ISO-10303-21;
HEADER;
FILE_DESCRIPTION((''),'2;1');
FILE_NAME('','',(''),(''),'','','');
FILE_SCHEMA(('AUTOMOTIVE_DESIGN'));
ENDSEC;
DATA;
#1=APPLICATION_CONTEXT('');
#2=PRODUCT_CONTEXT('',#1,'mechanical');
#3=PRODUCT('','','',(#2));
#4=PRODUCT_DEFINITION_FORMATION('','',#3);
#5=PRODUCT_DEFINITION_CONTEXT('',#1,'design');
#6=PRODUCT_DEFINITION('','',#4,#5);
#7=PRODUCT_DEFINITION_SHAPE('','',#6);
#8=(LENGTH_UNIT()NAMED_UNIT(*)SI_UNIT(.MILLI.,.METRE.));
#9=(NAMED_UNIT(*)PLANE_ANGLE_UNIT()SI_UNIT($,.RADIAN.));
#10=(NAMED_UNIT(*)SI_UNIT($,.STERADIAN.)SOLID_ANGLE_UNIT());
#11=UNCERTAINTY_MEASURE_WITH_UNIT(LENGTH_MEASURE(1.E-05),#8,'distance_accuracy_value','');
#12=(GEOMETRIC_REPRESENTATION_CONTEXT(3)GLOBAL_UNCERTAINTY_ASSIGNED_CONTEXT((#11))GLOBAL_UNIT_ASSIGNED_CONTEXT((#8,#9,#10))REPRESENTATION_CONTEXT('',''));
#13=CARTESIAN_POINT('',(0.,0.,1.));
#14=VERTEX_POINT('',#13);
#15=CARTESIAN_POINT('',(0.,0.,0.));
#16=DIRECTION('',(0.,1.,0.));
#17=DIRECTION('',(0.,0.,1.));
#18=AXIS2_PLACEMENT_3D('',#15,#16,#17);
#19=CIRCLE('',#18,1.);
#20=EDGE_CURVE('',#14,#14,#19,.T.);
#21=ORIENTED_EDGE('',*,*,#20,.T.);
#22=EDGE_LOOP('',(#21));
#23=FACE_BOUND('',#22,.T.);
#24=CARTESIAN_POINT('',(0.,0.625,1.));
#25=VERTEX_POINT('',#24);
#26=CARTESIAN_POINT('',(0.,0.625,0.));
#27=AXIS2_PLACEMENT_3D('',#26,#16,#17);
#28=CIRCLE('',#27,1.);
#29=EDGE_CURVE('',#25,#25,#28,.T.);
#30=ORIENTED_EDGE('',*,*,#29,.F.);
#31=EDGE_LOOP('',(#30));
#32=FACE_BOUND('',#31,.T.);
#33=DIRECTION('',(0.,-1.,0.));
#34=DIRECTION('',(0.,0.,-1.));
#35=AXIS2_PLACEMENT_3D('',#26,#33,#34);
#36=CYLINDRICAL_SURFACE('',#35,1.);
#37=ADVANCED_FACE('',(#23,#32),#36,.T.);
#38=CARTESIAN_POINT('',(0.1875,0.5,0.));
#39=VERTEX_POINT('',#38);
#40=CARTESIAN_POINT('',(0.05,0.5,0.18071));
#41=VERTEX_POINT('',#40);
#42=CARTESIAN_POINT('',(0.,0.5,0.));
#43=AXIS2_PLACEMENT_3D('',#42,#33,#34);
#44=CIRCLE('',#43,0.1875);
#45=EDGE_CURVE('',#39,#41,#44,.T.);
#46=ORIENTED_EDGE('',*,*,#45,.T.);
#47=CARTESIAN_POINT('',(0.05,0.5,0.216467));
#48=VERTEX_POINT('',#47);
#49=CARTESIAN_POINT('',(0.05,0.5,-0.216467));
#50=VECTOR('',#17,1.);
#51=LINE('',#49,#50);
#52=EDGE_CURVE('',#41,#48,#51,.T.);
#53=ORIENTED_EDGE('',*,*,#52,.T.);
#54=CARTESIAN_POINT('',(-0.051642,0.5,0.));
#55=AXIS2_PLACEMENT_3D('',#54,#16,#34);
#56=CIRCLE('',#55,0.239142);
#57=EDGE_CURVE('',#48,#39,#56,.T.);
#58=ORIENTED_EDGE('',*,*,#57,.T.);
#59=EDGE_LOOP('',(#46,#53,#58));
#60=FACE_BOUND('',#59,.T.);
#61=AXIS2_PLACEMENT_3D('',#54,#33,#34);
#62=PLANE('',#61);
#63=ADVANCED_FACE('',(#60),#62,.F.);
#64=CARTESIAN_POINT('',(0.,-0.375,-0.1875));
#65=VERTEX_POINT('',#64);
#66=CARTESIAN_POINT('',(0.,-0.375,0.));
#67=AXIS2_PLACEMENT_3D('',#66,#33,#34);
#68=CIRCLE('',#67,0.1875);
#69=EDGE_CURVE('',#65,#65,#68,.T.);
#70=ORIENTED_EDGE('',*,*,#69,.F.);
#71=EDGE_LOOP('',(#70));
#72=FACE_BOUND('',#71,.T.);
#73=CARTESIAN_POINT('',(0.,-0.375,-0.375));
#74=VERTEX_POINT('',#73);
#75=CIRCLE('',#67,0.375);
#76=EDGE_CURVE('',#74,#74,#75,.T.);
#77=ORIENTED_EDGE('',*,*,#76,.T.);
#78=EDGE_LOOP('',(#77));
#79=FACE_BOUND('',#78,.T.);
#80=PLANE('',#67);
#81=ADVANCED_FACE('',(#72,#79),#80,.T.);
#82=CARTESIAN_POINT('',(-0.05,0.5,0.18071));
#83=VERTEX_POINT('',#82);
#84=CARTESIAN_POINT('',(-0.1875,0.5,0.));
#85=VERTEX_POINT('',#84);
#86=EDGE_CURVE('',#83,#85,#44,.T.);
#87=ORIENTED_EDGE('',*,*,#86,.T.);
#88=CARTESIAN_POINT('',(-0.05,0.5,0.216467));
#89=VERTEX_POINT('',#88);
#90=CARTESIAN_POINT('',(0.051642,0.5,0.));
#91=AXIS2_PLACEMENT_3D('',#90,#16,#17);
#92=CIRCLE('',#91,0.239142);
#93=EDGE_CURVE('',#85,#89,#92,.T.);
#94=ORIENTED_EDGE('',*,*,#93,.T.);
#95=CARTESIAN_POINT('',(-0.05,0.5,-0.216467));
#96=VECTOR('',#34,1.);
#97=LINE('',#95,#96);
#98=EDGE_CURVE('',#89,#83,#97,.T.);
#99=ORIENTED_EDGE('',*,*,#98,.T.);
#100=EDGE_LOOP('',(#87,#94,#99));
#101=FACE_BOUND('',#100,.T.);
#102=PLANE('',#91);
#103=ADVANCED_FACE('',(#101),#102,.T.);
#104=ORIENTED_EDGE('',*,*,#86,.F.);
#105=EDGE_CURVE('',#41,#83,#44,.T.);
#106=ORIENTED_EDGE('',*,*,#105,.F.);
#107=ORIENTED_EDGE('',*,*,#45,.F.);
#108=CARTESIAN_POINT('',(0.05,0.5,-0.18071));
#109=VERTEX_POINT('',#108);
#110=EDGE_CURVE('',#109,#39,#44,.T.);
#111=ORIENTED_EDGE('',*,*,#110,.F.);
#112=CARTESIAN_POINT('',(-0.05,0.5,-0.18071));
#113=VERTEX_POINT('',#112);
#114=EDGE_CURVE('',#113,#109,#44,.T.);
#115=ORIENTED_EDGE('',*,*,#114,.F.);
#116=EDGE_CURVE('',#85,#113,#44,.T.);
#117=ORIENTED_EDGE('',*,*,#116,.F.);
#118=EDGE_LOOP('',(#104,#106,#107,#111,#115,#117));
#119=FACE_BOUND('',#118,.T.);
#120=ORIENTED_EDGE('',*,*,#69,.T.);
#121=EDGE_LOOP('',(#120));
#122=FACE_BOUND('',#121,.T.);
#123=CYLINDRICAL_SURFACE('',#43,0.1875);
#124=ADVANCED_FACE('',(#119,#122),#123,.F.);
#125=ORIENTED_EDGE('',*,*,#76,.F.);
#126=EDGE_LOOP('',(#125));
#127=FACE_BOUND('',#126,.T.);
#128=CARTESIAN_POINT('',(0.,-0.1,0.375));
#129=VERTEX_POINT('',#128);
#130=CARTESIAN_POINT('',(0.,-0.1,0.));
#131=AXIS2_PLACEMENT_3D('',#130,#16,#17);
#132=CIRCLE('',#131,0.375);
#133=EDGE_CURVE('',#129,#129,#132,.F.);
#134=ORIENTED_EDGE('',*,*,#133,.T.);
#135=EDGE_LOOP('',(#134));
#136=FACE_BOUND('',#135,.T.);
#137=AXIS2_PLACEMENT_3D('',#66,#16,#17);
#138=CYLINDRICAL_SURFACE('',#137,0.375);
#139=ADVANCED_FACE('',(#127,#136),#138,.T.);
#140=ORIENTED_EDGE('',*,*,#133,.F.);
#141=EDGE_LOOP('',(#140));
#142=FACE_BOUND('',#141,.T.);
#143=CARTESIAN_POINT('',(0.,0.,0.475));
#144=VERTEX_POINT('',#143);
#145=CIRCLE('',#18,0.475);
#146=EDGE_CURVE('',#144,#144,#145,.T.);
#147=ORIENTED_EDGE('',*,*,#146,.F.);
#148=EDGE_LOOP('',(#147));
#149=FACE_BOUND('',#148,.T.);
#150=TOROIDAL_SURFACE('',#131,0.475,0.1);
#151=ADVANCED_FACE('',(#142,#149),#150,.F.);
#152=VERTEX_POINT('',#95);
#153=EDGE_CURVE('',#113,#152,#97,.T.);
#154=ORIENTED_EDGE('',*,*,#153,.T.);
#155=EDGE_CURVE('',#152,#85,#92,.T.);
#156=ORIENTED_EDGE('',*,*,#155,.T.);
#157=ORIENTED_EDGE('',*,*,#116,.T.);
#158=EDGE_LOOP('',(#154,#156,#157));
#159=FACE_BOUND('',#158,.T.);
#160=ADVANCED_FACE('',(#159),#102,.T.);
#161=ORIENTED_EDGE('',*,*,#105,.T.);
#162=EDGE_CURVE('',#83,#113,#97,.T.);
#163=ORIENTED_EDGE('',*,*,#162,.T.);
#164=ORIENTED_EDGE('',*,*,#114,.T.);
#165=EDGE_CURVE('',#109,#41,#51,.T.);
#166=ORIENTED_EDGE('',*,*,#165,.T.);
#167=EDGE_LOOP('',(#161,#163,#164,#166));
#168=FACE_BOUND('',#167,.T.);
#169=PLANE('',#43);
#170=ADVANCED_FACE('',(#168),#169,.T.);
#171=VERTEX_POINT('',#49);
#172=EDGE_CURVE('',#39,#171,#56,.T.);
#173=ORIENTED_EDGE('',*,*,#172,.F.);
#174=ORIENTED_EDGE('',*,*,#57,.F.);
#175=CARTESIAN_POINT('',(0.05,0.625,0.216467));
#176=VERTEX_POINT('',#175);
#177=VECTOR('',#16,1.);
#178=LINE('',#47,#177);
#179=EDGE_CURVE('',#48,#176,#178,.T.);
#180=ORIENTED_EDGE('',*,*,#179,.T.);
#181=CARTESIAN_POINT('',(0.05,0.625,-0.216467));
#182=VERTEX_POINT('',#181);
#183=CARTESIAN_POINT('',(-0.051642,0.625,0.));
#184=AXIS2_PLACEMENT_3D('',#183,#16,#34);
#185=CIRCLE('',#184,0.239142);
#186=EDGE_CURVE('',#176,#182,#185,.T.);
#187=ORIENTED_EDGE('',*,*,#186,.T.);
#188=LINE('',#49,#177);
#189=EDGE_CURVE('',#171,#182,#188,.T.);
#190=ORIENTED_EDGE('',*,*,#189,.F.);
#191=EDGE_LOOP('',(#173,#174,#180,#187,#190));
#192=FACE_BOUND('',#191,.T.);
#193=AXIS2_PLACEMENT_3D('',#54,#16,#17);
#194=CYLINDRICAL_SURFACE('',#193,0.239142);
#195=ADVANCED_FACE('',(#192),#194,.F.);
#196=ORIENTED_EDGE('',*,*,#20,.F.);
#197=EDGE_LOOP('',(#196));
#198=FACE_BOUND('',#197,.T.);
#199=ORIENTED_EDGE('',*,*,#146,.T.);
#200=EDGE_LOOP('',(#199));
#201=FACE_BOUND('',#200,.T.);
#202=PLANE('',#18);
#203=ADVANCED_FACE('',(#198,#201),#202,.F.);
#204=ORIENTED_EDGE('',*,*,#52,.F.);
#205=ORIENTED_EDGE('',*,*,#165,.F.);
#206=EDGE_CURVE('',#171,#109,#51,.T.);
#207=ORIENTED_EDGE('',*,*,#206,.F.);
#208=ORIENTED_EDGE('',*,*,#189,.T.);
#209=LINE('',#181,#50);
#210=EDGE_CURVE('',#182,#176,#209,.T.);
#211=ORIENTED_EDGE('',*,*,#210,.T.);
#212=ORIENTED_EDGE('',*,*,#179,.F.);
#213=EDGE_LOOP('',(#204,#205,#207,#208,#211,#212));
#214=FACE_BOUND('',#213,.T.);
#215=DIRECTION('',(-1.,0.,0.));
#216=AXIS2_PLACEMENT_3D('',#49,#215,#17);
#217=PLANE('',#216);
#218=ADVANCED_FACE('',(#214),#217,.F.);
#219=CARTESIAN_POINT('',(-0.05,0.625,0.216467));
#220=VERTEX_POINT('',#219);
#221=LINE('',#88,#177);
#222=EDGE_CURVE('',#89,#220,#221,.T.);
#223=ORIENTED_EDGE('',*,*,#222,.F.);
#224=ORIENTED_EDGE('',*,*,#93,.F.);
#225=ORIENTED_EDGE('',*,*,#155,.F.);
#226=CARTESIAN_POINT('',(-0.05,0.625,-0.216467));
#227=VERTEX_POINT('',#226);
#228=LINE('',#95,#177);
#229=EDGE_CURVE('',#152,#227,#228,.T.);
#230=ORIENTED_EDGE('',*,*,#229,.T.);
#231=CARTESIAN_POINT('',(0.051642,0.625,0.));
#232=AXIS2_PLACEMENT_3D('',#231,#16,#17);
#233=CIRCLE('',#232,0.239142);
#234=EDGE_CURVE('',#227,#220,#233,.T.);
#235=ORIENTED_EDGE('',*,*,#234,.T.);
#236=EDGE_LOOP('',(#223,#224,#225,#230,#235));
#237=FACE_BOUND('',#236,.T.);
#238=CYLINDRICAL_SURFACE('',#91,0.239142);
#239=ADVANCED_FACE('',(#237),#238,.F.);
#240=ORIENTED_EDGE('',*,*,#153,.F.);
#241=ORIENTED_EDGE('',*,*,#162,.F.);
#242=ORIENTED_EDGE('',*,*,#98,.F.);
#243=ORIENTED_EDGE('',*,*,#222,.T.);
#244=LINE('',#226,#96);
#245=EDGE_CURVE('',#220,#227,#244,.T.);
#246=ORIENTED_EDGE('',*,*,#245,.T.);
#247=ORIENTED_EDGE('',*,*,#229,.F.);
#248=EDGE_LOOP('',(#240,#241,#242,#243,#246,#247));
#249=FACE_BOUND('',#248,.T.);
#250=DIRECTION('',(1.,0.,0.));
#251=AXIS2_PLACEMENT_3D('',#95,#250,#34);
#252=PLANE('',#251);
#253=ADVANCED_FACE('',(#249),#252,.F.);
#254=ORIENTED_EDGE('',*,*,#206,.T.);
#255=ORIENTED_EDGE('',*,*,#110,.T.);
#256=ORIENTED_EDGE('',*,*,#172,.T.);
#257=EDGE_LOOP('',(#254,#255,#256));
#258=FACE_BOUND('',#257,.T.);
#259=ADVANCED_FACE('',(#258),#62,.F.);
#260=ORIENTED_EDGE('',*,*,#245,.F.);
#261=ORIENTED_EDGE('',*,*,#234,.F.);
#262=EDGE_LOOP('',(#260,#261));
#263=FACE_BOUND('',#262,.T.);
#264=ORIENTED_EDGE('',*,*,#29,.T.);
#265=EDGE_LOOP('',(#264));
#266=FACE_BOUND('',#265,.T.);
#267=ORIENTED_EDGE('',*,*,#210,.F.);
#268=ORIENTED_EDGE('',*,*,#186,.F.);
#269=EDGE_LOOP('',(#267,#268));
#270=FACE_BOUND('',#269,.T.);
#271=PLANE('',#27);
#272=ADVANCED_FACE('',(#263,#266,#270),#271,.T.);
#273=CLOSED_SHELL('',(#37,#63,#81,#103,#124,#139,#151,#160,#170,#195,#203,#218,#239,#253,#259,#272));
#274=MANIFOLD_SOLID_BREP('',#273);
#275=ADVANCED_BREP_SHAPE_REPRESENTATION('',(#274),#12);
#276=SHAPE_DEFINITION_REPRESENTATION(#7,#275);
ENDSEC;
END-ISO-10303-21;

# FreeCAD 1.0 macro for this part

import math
import FreeCAD as App
import Part
import Sketcher


def edges_at(feature, points):
    """Names of the edges that pass closest to the given points."""
    edges = feature.Shape.Edges
    near = lambda p: min(range(len(edges)), key=lambda i: edges[i].distToShape(Part.Vertex(*p))[0])
    return sorted({f"Edge{near(p) + 1}" for p in points})

doc = App.newDocument("Part")
body = doc.addObject("PartDesign::Body", "Body")

sketch1 = body.newObject("Sketcher::SketchObject", "Sketch")
sketch1.AttachmentSupport = (doc.getObject("XZ_Plane"), [""])
sketch1.MapMode = "FlatFace"
sketch1.addGeometry(Part.Circle(App.Vector(0, 0, 0), App.Vector(0, 0, 1), 1), False)
sketch1.addConstraint([
    Sketcher.Constraint("Coincident", 0, 3, -1, 1),
    Sketcher.Constraint("Diameter", 0, 2.0),
])
pad1 = body.newObject("PartDesign::Pad", "Pad")
pad1.Profile = sketch1
pad1.Length = 0.625
pad1.Reversed = True

sketch2 = body.newObject("Sketcher::SketchObject", "Sketch001")
sketch2.AttachmentSupport = (doc.getObject("XZ_Plane"), [""])
sketch2.MapMode = "FlatFace"
sketch2.AttachmentOffset = App.Placement(App.Vector(0, 0, -0.625), App.Rotation())
sketch2.addGeometry([
    Part.LineSegment(App.Vector(-0.05, 0.216467, 0), App.Vector(-0.05, -0.216467, 0)),
    Part.ArcOfCircle(Part.Circle(App.Vector(0.051642, 0, 0), App.Vector(0, 0, 1), 0.239142), math.radians(115.152485), math.radians(244.847515)),
    Part.LineSegment(App.Vector(0.05, -0.216467, 0), App.Vector(0.05, 0.216467, 0)),
    Part.ArcOfCircle(Part.Circle(App.Vector(-0.051642, 0, 0), App.Vector(0, 0, 1), 0.239142), math.radians(-64.847515), math.radians(64.847515)),
], False)
sketch2.addConstraint([
    Sketcher.Constraint("Coincident", 0, 1, 1, 1),
    Sketcher.Constraint("Coincident", 1, 2, 0, 2),
    Sketcher.Constraint("Coincident", 2, 1, 3, 1),
    Sketcher.Constraint("Coincident", 3, 2, 2, 2),
    Sketcher.Constraint("Vertical", 0),
    Sketcher.Constraint("Vertical", 2),
    Sketcher.Constraint("Equal", 1, 3),
    Sketcher.Constraint("Symmetric", 1, 3, 3, 3, -1, 1),
    Sketcher.Constraint("Symmetric", 1, 2, 2, 1, -2),
    Sketcher.Constraint("DistanceX", 1, 2, 2, 1, 0.1),
    Sketcher.Constraint("Radius", 1, 0.239142),
    Sketcher.Constraint("DistanceY", 0, 2, 0, 1, 0.432934),
])
pocket1 = body.newObject("PartDesign::Pocket", "Pocket")
pocket1.Profile = sketch2
pocket1.Length = 0.125
pocket1.Reversed = True

sketch3 = body.newObject("Sketcher::SketchObject", "Sketch002")
sketch3.AttachmentSupport = (doc.getObject("XZ_Plane"), [""])
sketch3.MapMode = "FlatFace"
sketch3.addGeometry(Part.Circle(App.Vector(0, 0, 0), App.Vector(0, 0, 1), 0.375), False)
sketch3.addConstraint([
    Sketcher.Constraint("Coincident", 0, 3, -1, 1),
    Sketcher.Constraint("Diameter", 0, 0.75),
])
pad2 = body.newObject("PartDesign::Pad", "Pad001")
pad2.Profile = sketch3
pad2.Length = 0.375

sketch4 = body.newObject("Sketcher::SketchObject", "Sketch003")
sketch4.AttachmentSupport = (doc.getObject("XZ_Plane"), [""])
sketch4.MapMode = "FlatFace"
sketch4.AttachmentOffset = App.Placement(App.Vector(0, 0, 0.375), App.Rotation())
sketch4.addGeometry(Part.Circle(App.Vector(0, 0, 0), App.Vector(0, 0, 1), 0.1875), False)
sketch4.addConstraint([
    Sketcher.Constraint("Coincident", 0, 3, -1, 1),
    Sketcher.Constraint("Diameter", 0, 0.375),
])
pocket2 = body.newObject("PartDesign::Pocket", "Pocket001")
pocket2.Profile = sketch4
pocket2.Length = 0.875
doc.recompute()

fillet = body.newObject("PartDesign::Fillet", "Fillet")
fillet.Base = (pocket2, edges_at(pocket2, [(0, 0, 0.375)]))
fillet.Radius = 0.1

doc.recompute()
